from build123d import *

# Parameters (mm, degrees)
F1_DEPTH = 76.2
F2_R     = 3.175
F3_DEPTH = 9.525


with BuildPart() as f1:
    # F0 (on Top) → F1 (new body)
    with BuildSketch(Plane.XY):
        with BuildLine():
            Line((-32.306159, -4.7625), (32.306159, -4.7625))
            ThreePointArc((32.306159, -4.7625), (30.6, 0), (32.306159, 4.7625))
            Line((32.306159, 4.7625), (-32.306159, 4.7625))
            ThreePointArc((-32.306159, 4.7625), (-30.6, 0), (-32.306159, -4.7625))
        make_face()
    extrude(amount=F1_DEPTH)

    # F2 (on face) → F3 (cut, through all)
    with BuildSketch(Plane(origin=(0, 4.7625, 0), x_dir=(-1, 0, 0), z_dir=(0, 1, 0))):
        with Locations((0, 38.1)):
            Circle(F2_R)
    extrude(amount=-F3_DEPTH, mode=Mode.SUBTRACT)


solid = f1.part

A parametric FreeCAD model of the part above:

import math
import FreeCAD as App
import Part
import Sketcher

V = App.Vector
Q = App.Units.Quantity

doc = App.newDocument("Part")
body = doc.addObject("PartDesign::Body", "Body")

# Sketch on XY plane
sketch1 = body.newObject("Sketcher::SketchObject", "Sketch")
sketch1.AttachmentSupport = (doc.getObject("XY_Plane"), [""])
sketch1.MapMode = "FlatFace"
sketch1.addGeometry([
    Part.LineSegment(V(-32, -5, 0), V(32, -5, 0)),
    Part.ArcOfCircle(Part.Circle(V(38, 0, 0), V(0, 0, 1), 7), math.radians(141), math.radians(219)),
    Part.LineSegment(V(32, 5, 0), V(-32, 5, 0)),
    Part.ArcOfCircle(Part.Circle(V(-38, 0, 0), V(0, 0, 1), 7), math.radians(-39), math.radians(39)),
], False)
sketch1.addConstraint([
    Sketcher.Constraint("Coincident", 0, 2, 1, 2),
    Sketcher.Constraint("Coincident", 1, 1, 2, 1),
    Sketcher.Constraint("Coincident", 2, 2, 3, 2),
    Sketcher.Constraint("Coincident", 3, 1, 0, 1),
    Sketcher.Constraint("Horizontal", 0),
    Sketcher.Constraint("Horizontal", 2),
    Sketcher.Constraint("Equal", 1, 3),
    Sketcher.Constraint("Symmetric", 1, 3, 3, 3, -1, 1),
    Sketcher.Constraint("Symmetric", 0, 2, 1, 1, -1),
    Sketcher.Constraint("DistanceX", 3, 3, 1, 3, Q("3 in")),
    Sketcher.Constraint("Radius", 1, 7.5),
    Sketcher.Constraint("DistanceY", 0, 2, -1, 1, Q("0.1875 in")),
])
pad1 = body.newObject("PartDesign::Pad", "Pad")
pad1.Profile = sketch1
pad1.Length = Q("3 in")

# Sketch on XZ plane
sketch2 = body.newObject("Sketcher::SketchObject", "Sketch001")
sketch2.AttachmentSupport = (doc.getObject("XZ_Plane"), [""])
sketch2.MapMode = "FlatFace"
sketch2.AttachmentOffset = App.Placement(V(0, 0, -0.1875 * 25.4), App.Rotation())
sketch2.addGeometry(Part.Circle(V(0, 38.1, 0), V(0, 0, 1), 3.2), False)
sketch2.addConstraint([
    Sketcher.Constraint("PointOnObject", 0, 3, -2),
    Sketcher.Constraint("Diameter", 0, Q("0.25 in")),
    Sketcher.Constraint("DistanceY", -1, 1, 0, 3, Q("1.5 in")),
])
pocket1 = body.newObject("PartDesign::Pocket", "Pocket")
pocket1.Profile = sketch2
pocket1.Type = "ThroughAll"
pocket1.Reversed = True

doc.recompute()
